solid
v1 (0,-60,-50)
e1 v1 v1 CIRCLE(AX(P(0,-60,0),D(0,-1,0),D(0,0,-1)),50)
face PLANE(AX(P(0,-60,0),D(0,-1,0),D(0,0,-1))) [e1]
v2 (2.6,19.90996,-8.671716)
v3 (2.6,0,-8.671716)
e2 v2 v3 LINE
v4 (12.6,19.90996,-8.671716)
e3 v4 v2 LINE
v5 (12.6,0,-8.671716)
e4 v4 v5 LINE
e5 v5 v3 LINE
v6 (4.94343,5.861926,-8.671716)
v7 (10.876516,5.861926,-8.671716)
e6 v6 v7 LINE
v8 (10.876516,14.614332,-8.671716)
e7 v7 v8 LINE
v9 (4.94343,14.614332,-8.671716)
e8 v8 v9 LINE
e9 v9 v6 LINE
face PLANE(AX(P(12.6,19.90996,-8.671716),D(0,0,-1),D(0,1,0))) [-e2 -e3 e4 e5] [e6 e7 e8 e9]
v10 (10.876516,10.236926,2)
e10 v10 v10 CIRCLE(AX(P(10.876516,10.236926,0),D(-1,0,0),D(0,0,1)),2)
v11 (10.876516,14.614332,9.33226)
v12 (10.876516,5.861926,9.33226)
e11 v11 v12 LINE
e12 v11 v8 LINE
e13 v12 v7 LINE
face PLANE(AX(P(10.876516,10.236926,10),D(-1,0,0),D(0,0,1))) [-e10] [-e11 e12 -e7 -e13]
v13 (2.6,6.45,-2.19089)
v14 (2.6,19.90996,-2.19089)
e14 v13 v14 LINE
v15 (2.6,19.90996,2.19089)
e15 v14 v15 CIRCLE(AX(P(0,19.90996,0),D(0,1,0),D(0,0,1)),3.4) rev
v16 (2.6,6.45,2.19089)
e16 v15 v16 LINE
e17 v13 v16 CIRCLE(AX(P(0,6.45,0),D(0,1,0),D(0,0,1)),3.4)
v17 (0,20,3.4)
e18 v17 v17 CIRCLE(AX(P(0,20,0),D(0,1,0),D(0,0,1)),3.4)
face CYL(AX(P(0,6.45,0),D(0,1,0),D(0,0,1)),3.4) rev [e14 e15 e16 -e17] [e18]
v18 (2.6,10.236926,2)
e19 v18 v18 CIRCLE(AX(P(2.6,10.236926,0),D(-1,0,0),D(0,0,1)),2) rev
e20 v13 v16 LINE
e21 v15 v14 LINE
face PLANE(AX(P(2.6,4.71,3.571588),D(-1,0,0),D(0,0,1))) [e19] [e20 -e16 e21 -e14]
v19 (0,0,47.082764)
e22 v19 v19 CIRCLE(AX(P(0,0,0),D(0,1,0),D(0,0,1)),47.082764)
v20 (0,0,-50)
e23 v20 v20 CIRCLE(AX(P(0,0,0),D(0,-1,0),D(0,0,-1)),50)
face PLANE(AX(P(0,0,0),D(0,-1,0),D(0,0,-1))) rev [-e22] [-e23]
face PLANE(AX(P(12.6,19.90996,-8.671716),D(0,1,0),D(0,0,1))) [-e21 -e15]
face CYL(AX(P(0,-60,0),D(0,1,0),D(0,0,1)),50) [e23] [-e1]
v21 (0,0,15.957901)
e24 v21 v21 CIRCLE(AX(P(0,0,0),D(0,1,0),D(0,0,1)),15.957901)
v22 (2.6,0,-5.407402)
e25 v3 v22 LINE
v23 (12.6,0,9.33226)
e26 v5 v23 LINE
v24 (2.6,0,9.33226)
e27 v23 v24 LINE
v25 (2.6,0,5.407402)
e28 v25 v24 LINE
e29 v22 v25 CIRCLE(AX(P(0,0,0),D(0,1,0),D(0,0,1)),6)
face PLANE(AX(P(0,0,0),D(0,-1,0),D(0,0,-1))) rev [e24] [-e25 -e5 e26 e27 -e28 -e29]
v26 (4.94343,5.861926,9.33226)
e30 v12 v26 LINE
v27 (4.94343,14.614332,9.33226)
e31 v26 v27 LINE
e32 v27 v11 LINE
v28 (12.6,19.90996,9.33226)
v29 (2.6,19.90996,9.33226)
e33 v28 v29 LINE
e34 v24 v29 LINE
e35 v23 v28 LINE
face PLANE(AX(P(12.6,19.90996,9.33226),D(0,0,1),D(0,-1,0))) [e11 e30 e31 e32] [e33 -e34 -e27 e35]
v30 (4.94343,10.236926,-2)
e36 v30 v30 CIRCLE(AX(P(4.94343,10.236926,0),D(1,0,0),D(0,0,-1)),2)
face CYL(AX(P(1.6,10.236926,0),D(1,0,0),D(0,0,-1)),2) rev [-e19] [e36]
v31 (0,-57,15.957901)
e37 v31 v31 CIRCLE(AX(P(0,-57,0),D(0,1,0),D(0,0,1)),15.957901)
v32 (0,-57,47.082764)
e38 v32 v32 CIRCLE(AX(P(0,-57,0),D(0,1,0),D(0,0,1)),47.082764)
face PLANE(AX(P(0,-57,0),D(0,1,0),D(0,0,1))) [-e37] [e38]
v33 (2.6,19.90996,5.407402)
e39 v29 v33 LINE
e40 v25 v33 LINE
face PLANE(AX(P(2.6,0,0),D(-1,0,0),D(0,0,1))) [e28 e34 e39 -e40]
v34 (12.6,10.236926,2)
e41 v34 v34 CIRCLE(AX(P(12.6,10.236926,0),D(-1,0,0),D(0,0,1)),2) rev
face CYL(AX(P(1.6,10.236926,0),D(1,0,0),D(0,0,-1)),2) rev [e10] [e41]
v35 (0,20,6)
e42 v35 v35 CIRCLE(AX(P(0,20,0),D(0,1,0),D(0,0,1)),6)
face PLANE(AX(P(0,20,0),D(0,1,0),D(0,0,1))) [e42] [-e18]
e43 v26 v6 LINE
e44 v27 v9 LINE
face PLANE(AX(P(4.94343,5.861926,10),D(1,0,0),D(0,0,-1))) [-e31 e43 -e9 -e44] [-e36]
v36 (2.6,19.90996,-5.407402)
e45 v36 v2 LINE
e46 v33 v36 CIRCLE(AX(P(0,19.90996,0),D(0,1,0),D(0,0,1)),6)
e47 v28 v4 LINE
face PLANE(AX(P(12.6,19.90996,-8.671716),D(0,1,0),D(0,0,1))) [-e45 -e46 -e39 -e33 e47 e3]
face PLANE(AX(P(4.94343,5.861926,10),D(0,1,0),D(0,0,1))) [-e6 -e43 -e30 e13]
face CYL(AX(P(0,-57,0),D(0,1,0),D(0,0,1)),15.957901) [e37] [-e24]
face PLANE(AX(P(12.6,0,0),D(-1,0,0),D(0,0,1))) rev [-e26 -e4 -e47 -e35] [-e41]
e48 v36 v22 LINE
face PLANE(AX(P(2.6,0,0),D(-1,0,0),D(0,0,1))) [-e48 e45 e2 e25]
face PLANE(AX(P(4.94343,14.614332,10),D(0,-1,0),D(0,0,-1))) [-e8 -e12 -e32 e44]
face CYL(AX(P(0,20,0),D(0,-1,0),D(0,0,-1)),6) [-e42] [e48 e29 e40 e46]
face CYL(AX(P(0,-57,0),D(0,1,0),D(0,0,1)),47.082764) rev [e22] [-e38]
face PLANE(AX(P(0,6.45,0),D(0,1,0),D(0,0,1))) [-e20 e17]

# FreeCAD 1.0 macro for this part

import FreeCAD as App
import Part
import Sketcher


def add_polygon(sketch, points):
    """Adds a closed chain of lines whose ends are joined by coincident constraints."""
    first, n = sketch.GeometryCount, len(points)
    for a, b in zip(points, points[1:] + points[:1]):
        sketch.addGeometry(Part.LineSegment(App.Vector(*a, 0), App.Vector(*b, 0)), False)
    for i in range(n):
        sketch.addConstraint(Sketcher.Constraint("Coincident", first + i, 2, first + (i + 1) % n, 1))

doc = App.newDocument("Part")
body = doc.addObject("PartDesign::Body", "Body")

sketch1 = body.newObject("Sketcher::SketchObject", "Sketch")
sketch1.AttachmentSupport = (doc.getObject("XZ_Plane"), [""])
sketch1.MapMode = "FlatFace"
sketch1.addGeometry(Part.Circle(App.Vector(0, 0, 0), App.Vector(0, 0, 1), 6), False)
sketch1.addConstraint(Sketcher.Constraint("Coincident", 0, 3, -1, 1))
sketch1.addConstraint(Sketcher.Constraint("Diameter", 0, 12.0))
pad1 = body.newObject("PartDesign::Pad", "Pad")
pad1.Profile = sketch1
pad1.Length = 20
pad1.Reversed = True

sketch2 = body.newObject("Sketcher::SketchObject", "Sketch001")
sketch2.AttachmentSupport = (doc.getObject("XZ_Plane"), [""])
sketch2.MapMode = "FlatFace"
sketch2.AttachmentOffset = App.Placement(App.Vector(0, 0, -20), App.Rotation())
sketch2.addGeometry(Part.Circle(App.Vector(0, 0, 0), App.Vector(0, 0, 1), 3.4), False)
sketch2.addConstraint(Sketcher.Constraint("Coincident", 0, 3, -1, 1))
sketch2.addConstraint(Sketcher.Constraint("Diameter", 0, 6.8))
pocket1 = body.newObject("PartDesign::Pocket", "Pocket")
pocket1.Profile = sketch2
pocket1.Length = 13.55
pocket1.Reversed = True

sketch3 = body.newObject("Sketcher::SketchObject", "Sketch002")
sketch3.AttachmentSupport = (doc.getObject("XZ_Plane"), [""])
sketch3.MapMode = "FlatFace"
sketch3.AttachmentOffset = App.Placement(App.Vector(0, 0, -18.26), App.Rotation())
add_polygon(sketch3, [(2.6, -3.6), (2.6, 3.6), (4.2, 3.6), (4.2, -3.6)])
sketch3.addConstraint(Sketcher.Constraint("Vertical", 0))
sketch3.addConstraint(Sketcher.Constraint("Horizontal", 1))
sketch3.addConstraint(Sketcher.Constraint("Vertical", 2))
sketch3.addConstraint(Sketcher.Constraint("Horizontal", 3))
sketch3.addConstraint(Sketcher.Constraint("DistanceX", -1, 1, 0, 2, 2.6))
sketch3.addConstraint(Sketcher.Constraint("DistanceX", 1, 1, 1, 2, 1.550685))
sketch3.addConstraint(Sketcher.Constraint("DistanceY", 0, 1, 0, 2, 7.184216))
sketch3.addConstraint(Sketcher.Constraint("DistanceY", -1, 1, 0, 2, 3.571588))
pad2 = body.newObject("PartDesign::Pad", "Pad001")
pad2.Profile = sketch3
pad2.Length = 13.55

sketch4 = body.newObject("Sketcher::SketchObject", "Sketch003")
sketch4.AttachmentSupport = (doc.getObject("YZ_Plane"), [""])
sketch4.MapMode = "FlatFace"
sketch4.AttachmentOffset = App.Placement(App.Vector(0, 0, 2.6), App.Rotation())
add_polygon(sketch4, [(20, -9), (0, -9), (0, 9), (20, 9)])
sketch4.addConstraint(Sketcher.Constraint("Horizontal", 0))
sketch4.addConstraint(Sketcher.Constraint("Vertical", 1))
sketch4.addConstraint(Sketcher.Constraint("Horizontal", 2))
sketch4.addConstraint(Sketcher.Constraint("Vertical", 3))
sketch4.addConstraint(Sketcher.Constraint("PointOnObject", 0, 2, -2))
sketch4.addConstraint(Sketcher.Constraint("DistanceX", 0, 2, 0, 1, 19.90996))
sketch4.addConstraint(Sketcher.Constraint("DistanceY", 1, 1, 1, 2, 18.003976))
sketch4.addConstraint(Sketcher.Constraint("DistanceY", -1, 1, 1, 2, 9.33226))
pad3 = body.newObject("PartDesign::Pad", "Pad002")
pad3.Profile = sketch4
pad3.Length = 10

sketch5 = body.newObject("Sketcher::SketchObject", "Sketch004")
sketch5.AttachmentSupport = (doc.getObject("YZ_Plane"), [""])
sketch5.MapMode = "FlatFace"
sketch5.AttachmentOffset = App.Placement(App.Vector(0, 0, 2.6), App.Rotation())
sketch5.addGeometry(Part.Circle(App.Vector(10.2, 0, 0), App.Vector(0, 0, 1), 2), False)
sketch5.addConstraint(Sketcher.Constraint("PointOnObject", 0, 3, -1))
sketch5.addConstraint(Sketcher.Constraint("Diameter", 0, 4.0))
sketch5.addConstraint(Sketcher.Constraint("DistanceX", -1, 1, 0, 3, 10.236926))
pocket2 = body.newObject("PartDesign::Pocket", "Pocket001")
pocket2.Profile = sketch5
pocket2.Type = "TwoLengths"
pocket2.Length = 1
pocket2.Length2 = 13.55

sketch6 = body.newObject("Sketcher::SketchObject", "Sketch005")
sketch6.AttachmentSupport = (doc.getObject("XY_Plane"), [""])
sketch6.MapMode = "FlatFace"
add_polygon(sketch6, [(11, 6), (11, 15), (5, 15), (5, 6)])
sketch6.addConstraint(Sketcher.Constraint("Vertical", 0))
sketch6.addConstraint(Sketcher.Constraint("Horizontal", 1))
sketch6.addConstraint(Sketcher.Constraint("Vertical", 2))
sketch6.addConstraint(Sketcher.Constraint("Horizontal", 3))
sketch6.addConstraint(Sketcher.Constraint("DistanceX", 1, 2, 1, 1, 5.933086))
sketch6.addConstraint(Sketcher.Constraint("DistanceY", 0, 1, 0, 2, 8.752407))
sketch6.addConstraint(Sketcher.Constraint("DistanceX", -1, 1, 1, 2, 4.94343))
sketch6.addConstraint(Sketcher.Constraint("DistanceY", -1, 1, 0, 2, 14.614332))
pocket3 = body.newObject("PartDesign::Pocket", "Pocket002")
pocket3.Profile = sketch6
pocket3.Type = "ThroughAll"
pocket3.Midplane = True

sketch7 = body.newObject("Sketcher::SketchObject", "Sketch006")
sketch7.AttachmentSupport = (doc.getObject("XZ_Plane"), [""])
sketch7.MapMode = "FlatFace"
sketch7.addGeometry(Part.Circle(App.Vector(0, 0, 0), App.Vector(0, 0, 1), 50), False)
sketch7.addConstraint(Sketcher.Constraint("Coincident", 0, 3, -1, 1))
sketch7.addConstraint(Sketcher.Constraint("Diameter", 0, 100.0))
pad4 = body.newObject("PartDesign::Pad", "Pad003")
pad4.Profile = sketch7
pad4.Length = 60

sketch8 = body.newObject("Sketcher::SketchObject", "Sketch007")
sketch8.AttachmentSupport = (doc.getObject("XZ_Plane"), [""])
sketch8.MapMode = "FlatFace"
sketch8.addGeometry(Part.Circle(App.Vector(0, 0, 0), App.Vector(0, 0, 1), 47), False)
sketch8.addGeometry(Part.Circle(App.Vector(0, 0, 0), App.Vector(0, 0, 1), 16), False)
sketch8.addConstraint(Sketcher.Constraint("Coincident", 0, 3, -1, 1))
sketch8.addConstraint(Sketcher.Constraint("Coincident", 1, 3, -1, 1))
sketch8.addConstraint(Sketcher.Constraint("Diameter", 1, 31.915802))
sketch8.addConstraint(Sketcher.Constraint("Diameter", 0, 94.165529))
pocket4 = body.newObject("PartDesign::Pocket", "Pocket003")
pocket4.Profile = sketch8
pocket4.Length = 57
pocket4.Reversed = True

doc.recompute()
